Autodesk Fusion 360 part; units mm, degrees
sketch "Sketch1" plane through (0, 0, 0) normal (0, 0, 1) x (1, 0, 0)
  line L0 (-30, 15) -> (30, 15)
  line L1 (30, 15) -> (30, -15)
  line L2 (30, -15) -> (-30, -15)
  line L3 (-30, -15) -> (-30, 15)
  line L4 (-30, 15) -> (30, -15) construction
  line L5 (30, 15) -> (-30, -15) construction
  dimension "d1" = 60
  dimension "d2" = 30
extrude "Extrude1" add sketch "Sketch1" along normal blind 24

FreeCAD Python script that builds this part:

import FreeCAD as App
import Part
import Sketcher
Q = App.Units.Quantity

doc = App.newDocument("Part")
body = doc.addObject("PartDesign::Body", "Body")

# Sketch on XY plane
sketch1 = doc.addObject("Sketcher::SketchObject", "Sketch")
body.addObject(sketch1)
sketch1.AttachmentSupport = (doc.XY_Plane, [""])
sketch1.MapMode = "FlatFace"
sketch1.addGeometry(Part.LineSegment(App.Vector(30, 15, 0), App.Vector(-30, 15, 0)), False)
sketch1.addGeometry(Part.LineSegment(App.Vector(-30, 15, 0), App.Vector(-30, -15, 0)), False)
sketch1.addGeometry(Part.LineSegment(App.Vector(-30, -15, 0), App.Vector(30, -15, 0)), False)
sketch1.addGeometry(Part.LineSegment(App.Vector(30, -15, 0), App.Vector(30, 15, 0)), False)
sketch1.addConstraint(Sketcher.Constraint("Coincident", 0, 2, 1, 1))
sketch1.addConstraint(Sketcher.Constraint("Coincident", 1, 2, 2, 1))
sketch1.addConstraint(Sketcher.Constraint("Coincident", 2, 2, 3, 1))
sketch1.addConstraint(Sketcher.Constraint("Coincident", 3, 2, 0, 1))
sketch1.addConstraint(Sketcher.Constraint("Horizontal", 0))
sketch1.addConstraint(Sketcher.Constraint("Vertical", 1))
sketch1.addConstraint(Sketcher.Constraint("Horizontal", 2))
sketch1.addConstraint(Sketcher.Constraint("Vertical", 3))
sketch1.addConstraint(Sketcher.Constraint("Symmetric", 0, 2, 2, 2, -1, 1))
sketch1.addConstraint(Sketcher.Constraint("DistanceX", 0, 2, 0, 1, Q("60 mm")))
sketch1.addConstraint(Sketcher.Constraint("DistanceY", 1, 2, 1, 1, Q("30 mm")))
pad1 = doc.addObject("PartDesign::Pad", "Pad")
body.addObject(pad1)
pad1.Profile = sketch1
pad1.Length = 24

doc.recompute()
